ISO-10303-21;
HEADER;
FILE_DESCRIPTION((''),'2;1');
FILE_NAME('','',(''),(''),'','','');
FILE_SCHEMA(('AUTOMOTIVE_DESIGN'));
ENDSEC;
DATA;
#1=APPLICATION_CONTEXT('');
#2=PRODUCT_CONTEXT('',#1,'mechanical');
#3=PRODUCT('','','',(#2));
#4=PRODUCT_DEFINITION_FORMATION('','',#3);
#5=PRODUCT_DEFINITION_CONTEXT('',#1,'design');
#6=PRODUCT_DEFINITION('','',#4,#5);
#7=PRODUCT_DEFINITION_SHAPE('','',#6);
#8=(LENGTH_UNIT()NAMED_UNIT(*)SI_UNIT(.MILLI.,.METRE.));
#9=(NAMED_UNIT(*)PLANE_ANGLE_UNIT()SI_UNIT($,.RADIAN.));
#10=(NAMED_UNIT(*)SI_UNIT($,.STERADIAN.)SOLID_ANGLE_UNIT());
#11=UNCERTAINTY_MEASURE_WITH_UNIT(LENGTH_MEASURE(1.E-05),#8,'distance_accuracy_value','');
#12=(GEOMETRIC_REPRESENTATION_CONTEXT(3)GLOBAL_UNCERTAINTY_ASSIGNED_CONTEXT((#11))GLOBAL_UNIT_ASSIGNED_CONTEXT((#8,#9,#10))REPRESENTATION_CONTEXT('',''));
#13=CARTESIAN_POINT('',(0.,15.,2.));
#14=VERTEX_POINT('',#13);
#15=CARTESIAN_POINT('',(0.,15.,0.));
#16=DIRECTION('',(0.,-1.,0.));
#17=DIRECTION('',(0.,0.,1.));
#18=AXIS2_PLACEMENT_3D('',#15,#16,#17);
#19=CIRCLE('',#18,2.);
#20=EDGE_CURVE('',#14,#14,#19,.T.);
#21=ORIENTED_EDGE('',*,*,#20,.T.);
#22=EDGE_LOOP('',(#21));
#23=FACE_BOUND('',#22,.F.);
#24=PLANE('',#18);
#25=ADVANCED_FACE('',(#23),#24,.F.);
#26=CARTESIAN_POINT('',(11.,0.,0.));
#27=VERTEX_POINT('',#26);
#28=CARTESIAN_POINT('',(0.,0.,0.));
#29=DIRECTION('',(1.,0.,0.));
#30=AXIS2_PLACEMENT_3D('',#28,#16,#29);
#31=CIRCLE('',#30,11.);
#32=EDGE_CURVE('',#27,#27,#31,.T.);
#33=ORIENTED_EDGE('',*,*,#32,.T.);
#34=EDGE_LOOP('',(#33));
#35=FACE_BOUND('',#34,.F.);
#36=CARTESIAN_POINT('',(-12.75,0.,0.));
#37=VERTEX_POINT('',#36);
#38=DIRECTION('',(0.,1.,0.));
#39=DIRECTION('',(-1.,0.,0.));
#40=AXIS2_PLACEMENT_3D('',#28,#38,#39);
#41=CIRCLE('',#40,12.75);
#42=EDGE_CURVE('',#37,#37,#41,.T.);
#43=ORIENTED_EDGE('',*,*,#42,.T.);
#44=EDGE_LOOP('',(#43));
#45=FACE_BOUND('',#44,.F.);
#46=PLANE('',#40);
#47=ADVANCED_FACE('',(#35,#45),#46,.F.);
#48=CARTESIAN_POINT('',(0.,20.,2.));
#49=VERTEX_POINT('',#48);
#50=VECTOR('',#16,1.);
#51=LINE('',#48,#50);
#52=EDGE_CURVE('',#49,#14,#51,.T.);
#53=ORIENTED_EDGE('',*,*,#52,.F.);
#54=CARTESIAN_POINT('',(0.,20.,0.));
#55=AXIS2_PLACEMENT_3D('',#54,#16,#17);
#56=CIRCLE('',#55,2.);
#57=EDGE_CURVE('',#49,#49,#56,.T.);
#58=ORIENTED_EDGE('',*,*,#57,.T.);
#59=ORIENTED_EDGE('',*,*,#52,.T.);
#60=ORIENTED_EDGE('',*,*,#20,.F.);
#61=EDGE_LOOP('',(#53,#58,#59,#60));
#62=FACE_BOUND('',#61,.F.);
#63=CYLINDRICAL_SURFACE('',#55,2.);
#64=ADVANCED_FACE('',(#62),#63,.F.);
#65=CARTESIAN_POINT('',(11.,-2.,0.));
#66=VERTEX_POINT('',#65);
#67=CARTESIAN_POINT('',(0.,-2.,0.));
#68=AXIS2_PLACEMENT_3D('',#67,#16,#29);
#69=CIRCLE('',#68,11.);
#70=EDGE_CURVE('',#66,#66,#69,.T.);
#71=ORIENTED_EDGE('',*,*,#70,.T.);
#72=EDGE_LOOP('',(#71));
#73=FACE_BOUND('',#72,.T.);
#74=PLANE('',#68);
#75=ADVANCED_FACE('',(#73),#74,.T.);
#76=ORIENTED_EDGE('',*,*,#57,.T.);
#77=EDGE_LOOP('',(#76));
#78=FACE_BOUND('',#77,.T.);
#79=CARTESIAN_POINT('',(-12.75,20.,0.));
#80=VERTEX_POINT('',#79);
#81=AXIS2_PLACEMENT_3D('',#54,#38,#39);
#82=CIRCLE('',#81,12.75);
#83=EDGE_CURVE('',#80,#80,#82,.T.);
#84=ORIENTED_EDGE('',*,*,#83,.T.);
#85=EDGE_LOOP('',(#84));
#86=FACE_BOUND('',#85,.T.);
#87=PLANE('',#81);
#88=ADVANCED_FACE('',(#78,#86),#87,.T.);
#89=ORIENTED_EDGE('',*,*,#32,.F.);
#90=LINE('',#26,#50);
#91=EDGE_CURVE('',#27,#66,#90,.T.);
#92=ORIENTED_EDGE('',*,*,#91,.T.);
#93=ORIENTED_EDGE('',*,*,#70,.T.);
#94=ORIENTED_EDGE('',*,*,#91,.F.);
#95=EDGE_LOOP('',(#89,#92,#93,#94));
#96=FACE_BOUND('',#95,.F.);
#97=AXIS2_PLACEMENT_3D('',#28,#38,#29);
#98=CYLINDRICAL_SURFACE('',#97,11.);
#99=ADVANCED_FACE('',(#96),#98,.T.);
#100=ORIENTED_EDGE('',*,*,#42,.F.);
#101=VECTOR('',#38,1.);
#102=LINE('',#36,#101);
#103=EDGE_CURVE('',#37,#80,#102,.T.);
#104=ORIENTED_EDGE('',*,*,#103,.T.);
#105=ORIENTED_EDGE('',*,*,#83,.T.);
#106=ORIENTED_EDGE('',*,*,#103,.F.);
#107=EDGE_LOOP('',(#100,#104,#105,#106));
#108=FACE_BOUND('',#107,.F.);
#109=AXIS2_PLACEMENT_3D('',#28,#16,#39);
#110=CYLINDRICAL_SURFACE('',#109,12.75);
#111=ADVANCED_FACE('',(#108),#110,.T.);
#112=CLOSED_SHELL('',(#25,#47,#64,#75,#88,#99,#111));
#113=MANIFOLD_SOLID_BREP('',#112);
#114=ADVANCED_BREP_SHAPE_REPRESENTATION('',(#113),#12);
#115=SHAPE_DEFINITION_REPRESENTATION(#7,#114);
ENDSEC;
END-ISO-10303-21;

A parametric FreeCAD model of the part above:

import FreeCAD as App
import Part
import Sketcher

doc = App.newDocument("Part")
body = doc.addObject("PartDesign::Body", "Body")

sketch1 = body.newObject("Sketcher::SketchObject", "Sketch")
sketch1.AttachmentSupport = (doc.getObject("XZ_Plane"), [""])
sketch1.MapMode = "FlatFace"
sketch1.addGeometry(Part.Circle(App.Vector(0, 0, 0), App.Vector(0, 0, 1), 13), False)
sketch1.addConstraint([
    Sketcher.Constraint("Coincident", 0, 3, -1, 1),
    Sketcher.Constraint("Diameter", 0, 25.5),
])
pad1 = body.newObject("PartDesign::Pad", "Pad")
pad1.Profile = sketch1
pad1.Length = 20
pad1.Reversed = True

sketch2 = body.newObject("Sketcher::SketchObject", "Sketch001")
sketch2.AttachmentSupport = (doc.getObject("XZ_Plane"), [""])
sketch2.MapMode = "FlatFace"
sketch2.addGeometry(Part.Circle(App.Vector(0, 0, 0), App.Vector(0, 0, 1), 11), False)
sketch2.addConstraint([
    Sketcher.Constraint("Coincident", 0, 3, -1, 1),
    Sketcher.Constraint("Diameter", 0, 22.0),
])
pad2 = body.newObject("PartDesign::Pad", "Pad001")
pad2.Profile = sketch2
pad2.Length = 2

sketch3 = body.newObject("Sketcher::SketchObject", "Sketch002")
sketch3.AttachmentSupport = (doc.getObject("XZ_Plane"), [""])
sketch3.MapMode = "FlatFace"
sketch3.AttachmentOffset = App.Placement(App.Vector(0, 0, -20), App.Rotation())
sketch3.addGeometry(Part.Circle(App.Vector(0, 0, 0), App.Vector(0, 0, 1), 2), False)
sketch3.addConstraint([
    Sketcher.Constraint("Coincident", 0, 3, -1, 1),
    Sketcher.Constraint("Diameter", 0, 4.0),
])
doc.recompute()
hole = body.newObject("PartDesign::Hole", "Hole")
hole.Profile = sketch3
hole.ThreadType = "None"
hole.Diameter = 4
hole.DepthType = "Dimension"
hole.Depth = 5
hole.DrillPoint = "Flat"
hole.Reversed = True

doc.recompute()
